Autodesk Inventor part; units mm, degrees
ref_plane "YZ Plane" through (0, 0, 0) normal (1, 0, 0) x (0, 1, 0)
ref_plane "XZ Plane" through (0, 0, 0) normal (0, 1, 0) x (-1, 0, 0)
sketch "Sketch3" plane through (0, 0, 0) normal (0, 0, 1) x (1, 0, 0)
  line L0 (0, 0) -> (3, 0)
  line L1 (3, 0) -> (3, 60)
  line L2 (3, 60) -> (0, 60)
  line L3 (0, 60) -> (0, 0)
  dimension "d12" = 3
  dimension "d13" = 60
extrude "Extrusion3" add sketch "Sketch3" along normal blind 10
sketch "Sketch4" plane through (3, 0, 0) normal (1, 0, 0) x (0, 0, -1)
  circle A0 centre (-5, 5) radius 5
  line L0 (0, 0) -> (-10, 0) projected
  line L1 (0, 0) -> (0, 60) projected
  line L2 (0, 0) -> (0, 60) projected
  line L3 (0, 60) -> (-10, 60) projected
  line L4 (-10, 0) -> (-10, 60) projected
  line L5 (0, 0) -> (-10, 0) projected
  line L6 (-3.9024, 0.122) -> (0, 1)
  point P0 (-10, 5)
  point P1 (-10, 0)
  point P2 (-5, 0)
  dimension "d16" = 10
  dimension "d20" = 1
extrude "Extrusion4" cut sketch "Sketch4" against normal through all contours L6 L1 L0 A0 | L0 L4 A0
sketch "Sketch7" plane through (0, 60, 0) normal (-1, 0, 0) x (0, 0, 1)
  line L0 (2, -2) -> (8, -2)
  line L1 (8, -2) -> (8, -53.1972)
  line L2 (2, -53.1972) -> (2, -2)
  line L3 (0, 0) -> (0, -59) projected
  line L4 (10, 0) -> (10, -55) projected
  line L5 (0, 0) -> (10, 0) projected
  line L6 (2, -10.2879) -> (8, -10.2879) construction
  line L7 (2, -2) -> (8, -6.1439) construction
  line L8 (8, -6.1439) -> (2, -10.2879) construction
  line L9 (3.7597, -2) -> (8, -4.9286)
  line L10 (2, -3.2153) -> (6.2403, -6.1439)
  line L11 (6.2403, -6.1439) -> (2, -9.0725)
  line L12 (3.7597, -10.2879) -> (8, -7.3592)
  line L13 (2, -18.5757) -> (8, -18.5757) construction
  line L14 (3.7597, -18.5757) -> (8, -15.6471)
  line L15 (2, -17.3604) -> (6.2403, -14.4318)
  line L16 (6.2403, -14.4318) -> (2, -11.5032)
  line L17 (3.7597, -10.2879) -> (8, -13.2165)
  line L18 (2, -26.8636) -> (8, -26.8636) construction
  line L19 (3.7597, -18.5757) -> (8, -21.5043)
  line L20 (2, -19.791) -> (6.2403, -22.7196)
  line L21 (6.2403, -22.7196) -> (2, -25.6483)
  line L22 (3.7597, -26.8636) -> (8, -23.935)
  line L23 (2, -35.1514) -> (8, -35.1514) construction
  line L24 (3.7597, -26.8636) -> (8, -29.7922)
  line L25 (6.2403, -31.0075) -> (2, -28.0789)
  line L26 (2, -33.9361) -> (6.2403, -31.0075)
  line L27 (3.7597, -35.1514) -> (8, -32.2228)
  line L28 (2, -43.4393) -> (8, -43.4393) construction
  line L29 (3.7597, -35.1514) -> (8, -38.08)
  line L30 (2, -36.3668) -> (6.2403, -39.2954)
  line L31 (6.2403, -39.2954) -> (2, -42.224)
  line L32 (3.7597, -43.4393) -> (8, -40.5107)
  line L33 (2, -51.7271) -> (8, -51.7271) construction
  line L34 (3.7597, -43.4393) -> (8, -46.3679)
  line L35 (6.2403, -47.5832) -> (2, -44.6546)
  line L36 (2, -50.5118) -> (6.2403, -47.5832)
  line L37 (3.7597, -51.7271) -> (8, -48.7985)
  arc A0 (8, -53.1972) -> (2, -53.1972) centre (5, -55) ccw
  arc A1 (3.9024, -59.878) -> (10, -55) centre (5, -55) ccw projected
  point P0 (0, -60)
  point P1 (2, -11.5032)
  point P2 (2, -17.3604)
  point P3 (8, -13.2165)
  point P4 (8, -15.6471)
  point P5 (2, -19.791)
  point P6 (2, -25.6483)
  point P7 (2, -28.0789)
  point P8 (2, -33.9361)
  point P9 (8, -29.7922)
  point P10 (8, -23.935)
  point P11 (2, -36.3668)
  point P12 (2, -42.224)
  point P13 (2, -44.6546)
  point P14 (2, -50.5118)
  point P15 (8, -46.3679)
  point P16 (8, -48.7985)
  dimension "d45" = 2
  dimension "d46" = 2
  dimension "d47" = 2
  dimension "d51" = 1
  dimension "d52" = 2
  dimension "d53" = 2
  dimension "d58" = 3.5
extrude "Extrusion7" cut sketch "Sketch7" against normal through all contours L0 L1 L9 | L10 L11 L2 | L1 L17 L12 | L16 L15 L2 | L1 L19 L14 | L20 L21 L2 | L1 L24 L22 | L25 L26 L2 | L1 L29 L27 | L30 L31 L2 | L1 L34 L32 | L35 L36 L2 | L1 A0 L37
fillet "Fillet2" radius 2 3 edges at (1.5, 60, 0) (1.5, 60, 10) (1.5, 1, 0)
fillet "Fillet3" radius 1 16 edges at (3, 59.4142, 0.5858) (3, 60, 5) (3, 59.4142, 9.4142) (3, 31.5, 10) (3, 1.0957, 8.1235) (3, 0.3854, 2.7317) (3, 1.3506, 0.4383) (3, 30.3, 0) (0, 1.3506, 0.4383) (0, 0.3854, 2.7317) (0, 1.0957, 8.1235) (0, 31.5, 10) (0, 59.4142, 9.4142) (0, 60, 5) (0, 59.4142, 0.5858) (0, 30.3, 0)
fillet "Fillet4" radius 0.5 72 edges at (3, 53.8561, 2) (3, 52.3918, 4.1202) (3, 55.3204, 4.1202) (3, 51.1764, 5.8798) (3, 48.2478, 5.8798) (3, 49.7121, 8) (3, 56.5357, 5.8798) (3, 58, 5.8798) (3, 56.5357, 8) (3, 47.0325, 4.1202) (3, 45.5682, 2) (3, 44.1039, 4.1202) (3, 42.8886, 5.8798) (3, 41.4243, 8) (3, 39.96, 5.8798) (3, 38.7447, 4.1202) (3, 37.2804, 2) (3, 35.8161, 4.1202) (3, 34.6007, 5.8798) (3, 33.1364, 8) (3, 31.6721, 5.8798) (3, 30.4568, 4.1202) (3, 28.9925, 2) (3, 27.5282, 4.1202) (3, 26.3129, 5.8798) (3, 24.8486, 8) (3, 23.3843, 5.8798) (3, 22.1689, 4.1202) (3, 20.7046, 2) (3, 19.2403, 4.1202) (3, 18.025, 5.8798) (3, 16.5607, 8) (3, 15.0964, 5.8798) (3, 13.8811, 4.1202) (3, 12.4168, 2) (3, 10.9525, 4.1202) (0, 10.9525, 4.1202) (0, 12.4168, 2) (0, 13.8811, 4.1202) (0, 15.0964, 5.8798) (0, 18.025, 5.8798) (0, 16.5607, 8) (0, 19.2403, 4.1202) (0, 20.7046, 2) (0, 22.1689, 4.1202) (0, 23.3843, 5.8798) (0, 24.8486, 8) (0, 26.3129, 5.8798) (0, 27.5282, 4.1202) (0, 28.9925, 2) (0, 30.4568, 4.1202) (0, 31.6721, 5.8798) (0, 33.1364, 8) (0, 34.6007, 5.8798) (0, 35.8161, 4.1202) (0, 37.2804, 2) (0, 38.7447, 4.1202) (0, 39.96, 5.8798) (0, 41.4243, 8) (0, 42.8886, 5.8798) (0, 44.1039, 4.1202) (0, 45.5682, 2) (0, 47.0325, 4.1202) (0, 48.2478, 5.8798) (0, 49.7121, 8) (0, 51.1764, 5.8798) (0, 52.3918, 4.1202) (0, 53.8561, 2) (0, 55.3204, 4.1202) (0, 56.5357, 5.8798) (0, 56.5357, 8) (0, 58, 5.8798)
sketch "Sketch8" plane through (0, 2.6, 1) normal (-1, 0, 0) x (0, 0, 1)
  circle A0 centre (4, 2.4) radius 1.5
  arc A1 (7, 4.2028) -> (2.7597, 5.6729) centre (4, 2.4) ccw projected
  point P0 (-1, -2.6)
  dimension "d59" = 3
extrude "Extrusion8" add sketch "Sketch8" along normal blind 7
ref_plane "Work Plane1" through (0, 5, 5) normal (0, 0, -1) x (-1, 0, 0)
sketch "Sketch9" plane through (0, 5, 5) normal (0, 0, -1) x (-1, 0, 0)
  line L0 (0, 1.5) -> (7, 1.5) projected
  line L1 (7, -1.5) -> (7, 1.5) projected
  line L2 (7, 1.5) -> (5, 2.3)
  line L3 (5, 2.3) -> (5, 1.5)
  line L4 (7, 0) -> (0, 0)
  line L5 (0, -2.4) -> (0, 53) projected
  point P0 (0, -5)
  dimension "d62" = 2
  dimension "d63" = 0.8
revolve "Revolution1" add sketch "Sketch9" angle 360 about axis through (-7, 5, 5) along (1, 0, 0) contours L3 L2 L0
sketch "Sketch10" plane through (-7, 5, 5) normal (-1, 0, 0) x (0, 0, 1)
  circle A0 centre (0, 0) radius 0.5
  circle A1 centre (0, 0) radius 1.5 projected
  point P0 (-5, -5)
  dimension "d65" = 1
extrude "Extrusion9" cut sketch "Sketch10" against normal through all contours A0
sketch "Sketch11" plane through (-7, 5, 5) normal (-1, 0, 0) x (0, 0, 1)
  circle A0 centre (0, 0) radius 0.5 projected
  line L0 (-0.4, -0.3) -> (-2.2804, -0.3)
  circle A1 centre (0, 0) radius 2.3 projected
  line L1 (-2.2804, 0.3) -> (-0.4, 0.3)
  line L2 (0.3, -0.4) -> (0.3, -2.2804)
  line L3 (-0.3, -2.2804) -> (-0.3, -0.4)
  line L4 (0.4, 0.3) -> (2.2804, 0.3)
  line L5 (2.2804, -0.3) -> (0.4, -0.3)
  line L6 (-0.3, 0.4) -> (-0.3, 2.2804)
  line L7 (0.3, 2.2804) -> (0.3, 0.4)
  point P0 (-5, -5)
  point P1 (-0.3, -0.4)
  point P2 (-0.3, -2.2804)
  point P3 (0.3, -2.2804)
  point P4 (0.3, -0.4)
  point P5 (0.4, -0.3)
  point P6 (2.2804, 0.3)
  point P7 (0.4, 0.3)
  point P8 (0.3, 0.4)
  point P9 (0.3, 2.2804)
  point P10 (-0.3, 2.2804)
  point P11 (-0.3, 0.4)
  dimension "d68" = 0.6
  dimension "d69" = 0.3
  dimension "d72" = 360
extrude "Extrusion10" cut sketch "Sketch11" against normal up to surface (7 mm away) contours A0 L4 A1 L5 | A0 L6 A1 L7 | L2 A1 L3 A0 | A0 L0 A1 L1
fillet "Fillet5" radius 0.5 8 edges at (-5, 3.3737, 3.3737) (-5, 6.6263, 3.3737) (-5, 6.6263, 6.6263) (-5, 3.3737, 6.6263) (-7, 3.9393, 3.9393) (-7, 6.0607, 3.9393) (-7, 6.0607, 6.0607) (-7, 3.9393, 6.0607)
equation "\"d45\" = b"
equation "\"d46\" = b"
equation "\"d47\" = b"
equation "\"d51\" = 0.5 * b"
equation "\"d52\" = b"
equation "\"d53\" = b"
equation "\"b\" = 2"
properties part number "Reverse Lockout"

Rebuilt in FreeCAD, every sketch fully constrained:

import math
import FreeCAD as App
import Part
import Sketcher


def edges_at(feature, points):
    """Names of the edges that pass closest to the given points."""
    edges = feature.Shape.Edges
    near = lambda p: min(range(len(edges)), key=lambda i: edges[i].distToShape(Part.Vertex(*p))[0])
    return sorted({f"Edge{near(p) + 1}" for p in points})


def add_polygon(sketch, points):
    """Adds a closed chain of lines whose ends are joined by coincident constraints."""
    first, n = sketch.GeometryCount, len(points)
    for a, b in zip(points, points[1:] + points[:1]):
        sketch.addGeometry(Part.LineSegment(App.Vector(*a, 0), App.Vector(*b, 0)), False)
    for i in range(n):
        sketch.addConstraint(Sketcher.Constraint("Coincident", first + i, 2, first + (i + 1) % n, 1))

doc = App.newDocument("Part")
body = doc.addObject("PartDesign::Body", "Body")

sketch1 = body.newObject("Sketcher::SketchObject", "Sketch")
sketch1.AttachmentSupport = (doc.getObject("XY_Plane"), [""])
sketch1.MapMode = "FlatFace"
add_polygon(sketch1, [(0, 60), (0, 0), (3, 0), (3, 60)])
sketch1.addConstraint([
    Sketcher.Constraint("Vertical", 0),
    Sketcher.Constraint("Horizontal", 1),
    Sketcher.Constraint("Vertical", 2),
    Sketcher.Constraint("Horizontal", 3),
    Sketcher.Constraint("Coincident", 0, 2, -1, 1),
    Sketcher.Constraint("DistanceX", 1, 1, 1, 2, 3.0),
    Sketcher.Constraint("DistanceY", 0, 2, 0, 1, 60.0),
])
pad1 = body.newObject("PartDesign::Pad", "Pad")
pad1.Profile = sketch1
pad1.Length = 10

sketch2 = body.newObject("Sketcher::SketchObject", "Sketch001")
sketch2.AttachmentSupport = (doc.getObject("YZ_Plane"), [""])
sketch2.MapMode = "FlatFace"
sketch2.AttachmentOffset = App.Placement(App.Vector(0, 0, 3), App.Rotation())
sketch2.addGeometry([
    Part.LineSegment(App.Vector(1, 0, 0), App.Vector(0.1, 3.9, 0)),
    Part.ArcOfCircle(Part.Circle(App.Vector(5, 5, 0), App.Vector(0, 0, 1), 5), math.radians(180), math.radians(192.68)),
    Part.LineSegment(App.Vector(0, 5, 0), App.Vector(0, 0, 0)),
    Part.LineSegment(App.Vector(0, 0, 0), App.Vector(1, 0, 0)),
    Part.LineSegment(App.Vector(0, 10, 0), App.Vector(0, 5, 0)),
    Part.ArcOfCircle(Part.Circle(App.Vector(5, 5, 0), App.Vector(0, 0, 1), 5), math.radians(90), math.radians(180)),
    Part.LineSegment(App.Vector(5, 10, 0), App.Vector(0, 10, 0)),
], False)
sketch2.addConstraint([
    Sketcher.Constraint("Tangent", 0, 2, 1, 2),
    Sketcher.Constraint("Tangent", 1, 1, 2, 1),
    Sketcher.Constraint("Coincident", 2, 2, 3, 1),
    Sketcher.Constraint("Coincident", 3, 2, 0, 1),
    Sketcher.Constraint("Tangent", 4, 2, 5, 2),
    Sketcher.Constraint("Tangent", 5, 1, 6, 1),
    Sketcher.Constraint("Coincident", 6, 2, 4, 1),
    Sketcher.Constraint("Vertical", 2),
    Sketcher.Constraint("Horizontal", 3),
    Sketcher.Constraint("Vertical", 4),
    Sketcher.Constraint("Horizontal", 6),
    Sketcher.Constraint("Coincident", 2, 2, -1, 1),
    Sketcher.Constraint("Coincident", 5, 3, 1, 3),
    Sketcher.Constraint("Equal", 1, 5),
    Sketcher.Constraint("Equal", 6, 2),
    Sketcher.Constraint("Radius", 1, 5.0),
    Sketcher.Constraint("DistanceX", 3, 1, 3, 2, 1.0),
])
pocket1 = body.newObject("PartDesign::Pocket", "Pocket")
pocket1.Profile = sketch2
pocket1.Type = "ThroughAll"

sketch3 = body.newObject("Sketcher::SketchObject", "Sketch002")
sketch3.AttachmentSupport = (doc.getObject("YZ_Plane"), [""])
sketch3.MapMode = "FlatFace"
add_polygon(sketch3, [(58, 8), (58, 3.8), (55.1, 8)])
add_polygon(sketch3, [(53.9, 6.2), (56.8, 2), (50.9, 2)])
add_polygon(sketch3, [(46.8, 8), (52.6, 8), (49.7, 3.8)])
add_polygon(sketch3, [(45.6, 6.2), (48.5, 2), (42.6, 2)])
add_polygon(sketch3, [(38.5, 8), (44.4, 8), (41.4, 3.8)])
add_polygon(sketch3, [(37.3, 6.2), (40.2, 2), (34.4, 2)])
add_polygon(sketch3, [(30.2, 8), (36.1, 8), (33.1, 3.8)])
add_polygon(sketch3, [(29, 6.2), (31.9, 2), (26.1, 2)])
add_polygon(sketch3, [(21.9, 8), (27.8, 8), (24.8, 3.8)])
add_polygon(sketch3, [(20.7, 6.2), (23.6, 2), (17.8, 2)])
add_polygon(sketch3, [(13.6, 8), (19.5, 8), (16.6, 3.8)])
add_polygon(sketch3, [(12.4, 6.2), (15.3, 2), (9.5, 2)])
sketch3.addGeometry(Part.LineSegment(App.Vector(6.8, 8, 0), App.Vector(11.2, 8, 0)), False)
sketch3.addGeometry(Part.LineSegment(App.Vector(11.2, 8, 0), App.Vector(8.3, 3.8, 0)), False)
sketch3.addGeometry(Part.ArcOfCircle(Part.Circle(App.Vector(5, 5, 0), App.Vector(0, 0, 1), 3.5), math.radians(-21), math.radians(59)), False)
sketch3.addConstraint([
    Sketcher.Constraint("Coincident", 36, 2, 37, 1),
    Sketcher.Constraint("Coincident", 37, 2, 38, 1),
    Sketcher.Constraint("Coincident", 38, 2, 36, 1),
    Sketcher.Constraint("Vertical", 0),
    Sketcher.Constraint("Horizontal", 2),
    Sketcher.Constraint("Horizontal", 4),
    Sketcher.Constraint("Horizontal", 6),
    Sketcher.Constraint("Horizontal", 10),
    Sketcher.Constraint("Horizontal", 12),
    Sketcher.Constraint("Horizontal", 16),
    Sketcher.Constraint("Horizontal", 18),
    Sketcher.Constraint("Horizontal", 22),
    Sketcher.Constraint("Horizontal", 24),
    Sketcher.Constraint("Horizontal", 28),
    Sketcher.Constraint("Horizontal", 30),
    Sketcher.Constraint("Horizontal", 34),
    Sketcher.Constraint("Horizontal", 36),
    Sketcher.Constraint("Parallel", 1, 3),
    Sketcher.Constraint("Parallel", 5, 7),
    Sketcher.Constraint("Parallel", 3, 8),
    Sketcher.Constraint("Parallel", 8, 9),
    Sketcher.Constraint("Parallel", 7, 11),
    Sketcher.Constraint("Parallel", 11, 13),
    Sketcher.Constraint("Parallel", 9, 14),
    Sketcher.Constraint("Parallel", 14, 15),
    Sketcher.Constraint("Parallel", 13, 17),
    Sketcher.Constraint("Parallel", 17, 19),
    Sketcher.Constraint("Parallel", 15, 20),
    Sketcher.Constraint("Parallel", 20, 21),
    Sketcher.Constraint("Parallel", 19, 23),
    Sketcher.Constraint("Parallel", 23, 25),
    Sketcher.Constraint("Parallel", 21, 26),
    Sketcher.Constraint("Parallel", 26, 27),
    Sketcher.Constraint("Parallel", 25, 29),
    Sketcher.Constraint("Parallel", 29, 31),
    Sketcher.Constraint("Parallel", 27, 32),
    Sketcher.Constraint("Parallel", 32, 33),
    Sketcher.Constraint("Parallel", 31, 35),
    Sketcher.Constraint("Parallel", 35, 37),
    Sketcher.Constraint("Horizontal", 2, 2, 6, 2),
    Sketcher.Constraint("Horizontal", 0, 2, 7, 2),
    Sketcher.Constraint("Horizontal", 4, 2, 9, 2),
    Sketcher.Constraint("Horizontal", 5, 2, 11, 2),
    Sketcher.Constraint("Horizontal", 8, 2, 12, 2),
    Sketcher.Constraint("Horizontal", 7, 2, 13, 2),
    Sketcher.Constraint("Horizontal", 10, 2, 15, 2),
    Sketcher.Constraint("Horizontal", 11, 2, 17, 2),
    Sketcher.Constraint("Horizontal", 14, 2, 18, 2),
    Sketcher.Constraint("Horizontal", 13, 2, 19, 2),
    Sketcher.Constraint("Horizontal", 16, 2, 21, 2),
    Sketcher.Constraint("Horizontal", 17, 2, 23, 2),
    Sketcher.Constraint("Horizontal", 20, 2, 24, 2),
    Sketcher.Constraint("Horizontal", 19, 2, 25, 2),
    Sketcher.Constraint("Horizontal", 22, 2, 27, 2),
    Sketcher.Constraint("Horizontal", 23, 2, 29, 2),
    Sketcher.Constraint("Horizontal", 26, 2, 30, 2),
    Sketcher.Constraint("Horizontal", 25, 2, 31, 2),
    Sketcher.Constraint("Horizontal", 28, 2, 33, 2),
    Sketcher.Constraint("Horizontal", 29, 2, 35, 2),
    Sketcher.Constraint("Horizontal", 32, 2, 36, 2),
    Sketcher.Constraint("Horizontal", 31, 2, 37, 2),
    Sketcher.Constraint("Equal", 4, 6),
    Sketcher.Constraint("Equal", 3, 5),
    Sketcher.Constraint("Radius", 38, 3.5),
    Sketcher.Constraint("DistanceY", -1, 1, 3, 2, 2.0),
    Sketcher.Constraint("DistanceX", -1, 1, 38, 3, 5.0),
    Sketcher.Constraint("DistanceY", -1, 1, 38, 3, 5.0),
    Sketcher.Constraint("DistanceX", -1, 1, 0, 2, 58.0),
    Sketcher.Constraint("DistanceY", -1, 1, 1, 2, 8.0),
    Sketcher.Constraint("DistanceX", -1, 1, 26, 2, 21.92),
    Sketcher.Constraint("DistanceX", 38, 2, 37, 2, 1.47),
    Sketcher.Constraint("DistanceX", 2, 1, 2, 2, 2.9286),
    Sketcher.Constraint("DistanceX", -1, 1, 5, 2, 53.856),
    Sketcher.Constraint("DistanceX", -1, 1, 7, 2, 49.712),
    Sketcher.Constraint("DistanceX", -1, 1, 12, 2, 44.353),
    Sketcher.Constraint("DistanceX", -1, 1, 15, 2, 40.209),
    Sketcher.Constraint("DistanceX", -1, 1, 18, 2, 36.065),
    Sketcher.Constraint("DistanceX", -1, 1, 21, 2, 31.921),
    Sketcher.Constraint("DistanceX", -1, 1, 28, 2, 17.776),
    Sketcher.Constraint("DistanceX", -1, 1, 32, 2, 13.632),
    Sketcher.Constraint("DistanceX", 9, 2, 6, 2, 4.144),
    Sketcher.Constraint("DistanceX", 33, 2, 30, 2, 4.144),
])
pocket2 = body.newObject("PartDesign::Pocket", "Pocket001")
pocket2.Profile = sketch3
pocket2.Type = "ThroughAll"
pocket2.Reversed = True
doc.recompute()

fillet = body.newObject("PartDesign::Fillet", "Fillet")
fillet.Base = (pocket2, edges_at(pocket2, [(1.5, 60, 0), (1.5, 60, 10), (1.5, 1, 0)]))
fillet.Radius = 2
doc.recompute()

fillet2 = body.newObject("PartDesign::Fillet", "Fillet001")
fillet2.Base = (fillet, edges_at(fillet, [
    (3, 59.414, 0.586),
    (3, 60, 5),
    (3, 59.414, 9.414),
    (3, 31.5, 10),
    (3, 1.096, 8.123),
    (3, 0.385, 2.732),
    (3, 1.351, 0.438),
    (3, 30.3, 0),
    (0, 1.351, 0.438),
    (0, 0.385, 2.732),
    (0, 1.096, 8.123),
    (0, 31.5, 10),
    (0, 59.414, 9.414),
    (0, 60, 5),
    (0, 59.414, 0.586),
    (0, 30.3, 0),
]))
fillet2.Radius = 1
doc.recompute()

fillet3 = body.newObject("PartDesign::Fillet", "Fillet002")
fillet3.Base = (fillet2, edges_at(fillet2, [
    (3, 53.856, 2),
    (3, 52.392, 4.12),
    (3, 55.32, 4.12),
    (3, 51.176, 5.88),
    (3, 48.248, 5.88),
    (3, 49.712, 8),
    (3, 56.536, 5.88),
    (3, 58, 5.88),
    (3, 56.536, 8),
    (3, 47.032, 4.12),
    (3, 45.568, 2),
    (3, 44.104, 4.12),
    (3, 42.889, 5.88),
    (3, 41.424, 8),
    (3, 39.96, 5.88),
    (3, 38.745, 4.12),
    (3, 37.28, 2),
    (3, 35.816, 4.12),
    (3, 34.601, 5.88),
    (3, 33.136, 8),
    (3, 31.672, 5.88),
    (3, 30.457, 4.12),
    (3, 28.992, 2),
    (3, 27.528, 4.12),
    (3, 26.313, 5.88),
    (3, 24.849, 8),
    (3, 23.384, 5.88),
    (3, 22.169, 4.12),
    (3, 20.705, 2),
    (3, 19.24, 4.12),
    (3, 18.025, 5.88),
    (3, 16.561, 8),
    (3, 15.096, 5.88),
    (3, 13.881, 4.12),
    (3, 12.417, 2),
    (3, 10.953, 4.12),
    (0, 10.953, 4.12),
    (0, 12.417, 2),
    (0, 13.881, 4.12),
    (0, 15.096, 5.88),
    (0, 18.025, 5.88),
    (0, 16.561, 8),
    (0, 19.24, 4.12),
    (0, 20.705, 2),
    (0, 22.169, 4.12),
    (0, 23.384, 5.88),
    (0, 24.849, 8),
    (0, 26.313, 5.88),
    (0, 27.528, 4.12),
    (0, 28.992, 2),
    (0, 30.457, 4.12),
    (0, 31.672, 5.88),
    (0, 33.136, 8),
    (0, 34.601, 5.88),
    (0, 35.816, 4.12),
    (0, 37.28, 2),
    (0, 38.745, 4.12),
    (0, 39.96, 5.88),
    (0, 41.424, 8),
    (0, 42.889, 5.88),
    (0, 44.104, 4.12),
    (0, 45.568, 2),
    (0, 47.032, 4.12),
    (0, 48.248, 5.88),
    (0, 49.712, 8),
    (0, 51.176, 5.88),
    (0, 52.392, 4.12),
    (0, 53.856, 2),
    (0, 55.32, 4.12),
    (0, 56.536, 5.88),
    (0, 56.536, 8),
    (0, 58, 5.88),
]))
fillet3.Radius = 0.5

sketch4 = body.newObject("Sketcher::SketchObject", "Sketch003")
sketch4.AttachmentSupport = (doc.getObject("YZ_Plane"), [""])
sketch4.MapMode = "FlatFace"
sketch4.addGeometry(Part.Circle(App.Vector(5, 5, 0), App.Vector(0, 0, 1), 1.5), False)
sketch4.addConstraint([
    Sketcher.Constraint("Diameter", 0, 3.0),
    Sketcher.Constraint("DistanceX", -1, 1, 0, 3, 5.0),
    Sketcher.Constraint("DistanceY", -1, 1, 0, 3, 5.0),
])
pad2 = body.newObject("PartDesign::Pad", "Pad001")
pad2.Profile = sketch4
pad2.Length = 7
pad2.Reversed = True

sketch5 = body.newObject("Sketcher::SketchObject", "Sketch004")
sketch5.AttachmentSupport = (doc.getObject("XY_Plane"), [""])
sketch5.MapMode = "FlatFace"
sketch5.AttachmentOffset = App.Placement(App.Vector(0, 0, 5), App.Rotation())
add_polygon(sketch5, [(-5, 7.3), (-5, 6.5), (-7, 6.5)])
sketch5.addGeometry(Part.LineSegment(App.Vector(-7, 5, 0), App.Vector(-5, 5, 0)), True)
sketch5.addConstraint([
    Sketcher.Constraint("Vertical", 0),
    Sketcher.Constraint("Horizontal", 1),
    Sketcher.Constraint("Horizontal", 3),
    Sketcher.Constraint("Vertical", 1, 2, 3, 1),
    Sketcher.Constraint("Vertical", 2, 2, 3, 2),
    Sketcher.Constraint("DistanceX", 1, 2, 1, 1, 2.0),
    Sketcher.Constraint("DistanceY", 0, 2, 0, 1, 0.8),
    Sketcher.Constraint("DistanceX", 0, 2, -1, 1, 5.0),
    Sketcher.Constraint("DistanceY", -1, 1, 3, 1, 5.0),
    Sketcher.Constraint("DistanceY", -1, 1, 0, 2, 6.5),
])
revolution = body.newObject("PartDesign::Revolution", "Revolution")
revolution.Profile = sketch5
revolution.ReferenceAxis = (sketch5, ["Axis0"])
revolution.Angle = 360

sketch6 = body.newObject("Sketcher::SketchObject", "Sketch005")
sketch6.AttachmentSupport = (doc.getObject("YZ_Plane"), [""])
sketch6.MapMode = "FlatFace"
sketch6.AttachmentOffset = App.Placement(App.Vector(0, 0, -7), App.Rotation())
sketch6.addGeometry(Part.Circle(App.Vector(5, 5, 0), App.Vector(0, 0, 1), 0.5), False)
sketch6.addConstraint([
    Sketcher.Constraint("Diameter", 0, 1.0),
    Sketcher.Constraint("DistanceX", -1, 1, 0, 3, 5.0),
    Sketcher.Constraint("DistanceY", -1, 1, 0, 3, 5.0),
])
pocket3 = body.newObject("PartDesign::Pocket", "Pocket002")
pocket3.Profile = sketch6
pocket3.Type = "ThroughAll"
pocket3.Reversed = True

sketch7 = body.newObject("Sketcher::SketchObject", "Sketch006")
sketch7.AttachmentSupport = (doc.getObject("YZ_Plane"), [""])
sketch7.MapMode = "FlatFace"
sketch7.AttachmentOffset = App.Placement(App.Vector(0, 0, -7), App.Rotation())
sketch7.addGeometry([
    Part.ArcOfCircle(Part.Circle(App.Vector(5, 5, 0), App.Vector(0, 0, 1), 0.5), math.radians(53), math.radians(127)),
    Part.LineSegment(App.Vector(4.7, 5.4, 0), App.Vector(4.7, 7.3, 0)),
    Part.ArcOfCircle(Part.Circle(App.Vector(5, 5, 0), App.Vector(0, 0, 1), 2.3), math.radians(82.51), math.radians(97.49)),
    Part.LineSegment(App.Vector(5.3, 7.3, 0), App.Vector(5.3, 5.4, 0)),
    Part.ArcOfCircle(Part.Circle(App.Vector(5, 5, 0), App.Vector(0, 0, 1), 0.5), math.radians(-37), math.radians(37)),
    Part.LineSegment(App.Vector(5.4, 5.3, 0), App.Vector(7.3, 5.3, 0)),
    Part.ArcOfCircle(Part.Circle(App.Vector(5, 5, 0), App.Vector(0, 0, 1), 2.3), math.radians(-7.49), math.radians(7.49)),
    Part.LineSegment(App.Vector(7.3, 4.7, 0), App.Vector(5.4, 4.7, 0)),
    Part.LineSegment(App.Vector(2.7, 5.3, 0), App.Vector(4.6, 5.3, 0)),
    Part.ArcOfCircle(Part.Circle(App.Vector(5, 5, 0), App.Vector(0, 0, 1), 0.5), math.radians(143), math.radians(217)),
    Part.LineSegment(App.Vector(4.6, 4.7, 0), App.Vector(2.7, 4.7, 0)),
    Part.ArcOfCircle(Part.Circle(App.Vector(5, 5, 0), App.Vector(0, 0, 1), 2.3), math.radians(172.51), math.radians(187.49)),
    Part.ArcOfCircle(Part.Circle(App.Vector(5, 5, 0), App.Vector(0, 0, 1), 0.5), math.radians(-127), math.radians(-53)),
    Part.LineSegment(App.Vector(5.3, 4.6, 0), App.Vector(5.3, 2.7, 0)),
    Part.ArcOfCircle(Part.Circle(App.Vector(5, 5, 0), App.Vector(0, 0, 1), 2.3), math.radians(-97.49), math.radians(-82.51)),
    Part.LineSegment(App.Vector(4.7, 2.7, 0), App.Vector(4.7, 4.6, 0)),
], False)
sketch7.addConstraint([
    Sketcher.Constraint("Coincident", 0, 2, 1, 1),
    Sketcher.Constraint("Coincident", 1, 2, 2, 2),
    Sketcher.Constraint("Coincident", 2, 1, 3, 1),
    Sketcher.Constraint("Coincident", 3, 2, 0, 1),
    Sketcher.Constraint("Coincident", 4, 2, 5, 1),
    Sketcher.Constraint("Coincident", 5, 2, 6, 2),
    Sketcher.Constraint("Coincident", 6, 1, 7, 1),
    Sketcher.Constraint("Coincident", 7, 2, 4, 1),
    Sketcher.Constraint("Coincident", 8, 2, 9, 1),
    Sketcher.Constraint("Coincident", 9, 2, 10, 1),
    Sketcher.Constraint("Coincident", 10, 2, 11, 2),
    Sketcher.Constraint("Coincident", 11, 1, 8, 1),
    Sketcher.Constraint("Coincident", 12, 2, 13, 1),
    Sketcher.Constraint("Coincident", 13, 2, 14, 2),
    Sketcher.Constraint("Coincident", 14, 1, 15, 1),
    Sketcher.Constraint("Coincident", 15, 2, 12, 1),
    Sketcher.Constraint("Vertical", 1),
    Sketcher.Constraint("Vertical", 3),
    Sketcher.Constraint("Horizontal", 5),
    Sketcher.Constraint("Horizontal", 7),
    Sketcher.Constraint("Horizontal", 8),
    Sketcher.Constraint("Horizontal", 10),
    Sketcher.Constraint("Vertical", 13),
    Sketcher.Constraint("Vertical", 15),
    Sketcher.Constraint("Coincident", 2, 3, 0, 3),
    Sketcher.Constraint("Coincident", 4, 3, 0, 3),
    Sketcher.Constraint("Coincident", 6, 3, 0, 3),
    Sketcher.Constraint("Coincident", 9, 3, 0, 3),
    Sketcher.Constraint("Coincident", 11, 3, 0, 3),
    Sketcher.Constraint("Coincident", 12, 3, 0, 3),
    Sketcher.Constraint("Coincident", 14, 3, 0, 3),
    Sketcher.Constraint("Equal", 0, 4),
    Sketcher.Constraint("Equal", 2, 6),
    Sketcher.Constraint("Equal", 4, 9),
    Sketcher.Constraint("Equal", 6, 11),
    Sketcher.Constraint("Equal", 9, 12),
    Sketcher.Constraint("Equal", 11, 14),
    Sketcher.Constraint("Horizontal", 1, 2, 2, 1),
    Sketcher.Constraint("Horizontal", 5, 2, 8, 2),
    Sketcher.Constraint("Horizontal", 7, 2, 9, 2),
    Sketcher.Constraint("Horizontal", 13, 2, 14, 1),
    Sketcher.Constraint("Vertical", 5, 2, 6, 1),
    Sketcher.Constraint("Vertical", 3, 2, 12, 2),
    Sketcher.Constraint("Equal", 10, 1),
    Sketcher.Constraint("Radius", 0, 0.5),
    Sketcher.Constraint("Radius", 2, 2.3),
    Sketcher.Constraint("DistanceX", 0, 2, 0, 3, 0.3),
    Sketcher.Constraint("DistanceX", -1, 1, 0, 3, 5.0),
    Sketcher.Constraint("DistanceY", -1, 1, 0, 3, 5.0),
])
pocket4 = body.newObject("PartDesign::Pocket", "Pocket003")
pocket4.Profile = sketch7
pocket4.Length = 7
pocket4.Reversed = True
doc.recompute()

fillet4 = body.newObject("PartDesign::Fillet", "Fillet003")
fillet4.Base = (pocket4, edges_at(pocket4, [
    (-5, 3.374, 3.374),
    (-5, 6.626, 3.374),
    (-5, 6.626, 6.626),
    (-5, 3.374, 6.626),
    (-7, 3.939, 3.939),
    (-7, 6.061, 3.939),
    (-7, 6.061, 6.061),
    (-7, 3.939, 6.061),
]))
fillet4.Radius = 0.5

doc.recompute()
